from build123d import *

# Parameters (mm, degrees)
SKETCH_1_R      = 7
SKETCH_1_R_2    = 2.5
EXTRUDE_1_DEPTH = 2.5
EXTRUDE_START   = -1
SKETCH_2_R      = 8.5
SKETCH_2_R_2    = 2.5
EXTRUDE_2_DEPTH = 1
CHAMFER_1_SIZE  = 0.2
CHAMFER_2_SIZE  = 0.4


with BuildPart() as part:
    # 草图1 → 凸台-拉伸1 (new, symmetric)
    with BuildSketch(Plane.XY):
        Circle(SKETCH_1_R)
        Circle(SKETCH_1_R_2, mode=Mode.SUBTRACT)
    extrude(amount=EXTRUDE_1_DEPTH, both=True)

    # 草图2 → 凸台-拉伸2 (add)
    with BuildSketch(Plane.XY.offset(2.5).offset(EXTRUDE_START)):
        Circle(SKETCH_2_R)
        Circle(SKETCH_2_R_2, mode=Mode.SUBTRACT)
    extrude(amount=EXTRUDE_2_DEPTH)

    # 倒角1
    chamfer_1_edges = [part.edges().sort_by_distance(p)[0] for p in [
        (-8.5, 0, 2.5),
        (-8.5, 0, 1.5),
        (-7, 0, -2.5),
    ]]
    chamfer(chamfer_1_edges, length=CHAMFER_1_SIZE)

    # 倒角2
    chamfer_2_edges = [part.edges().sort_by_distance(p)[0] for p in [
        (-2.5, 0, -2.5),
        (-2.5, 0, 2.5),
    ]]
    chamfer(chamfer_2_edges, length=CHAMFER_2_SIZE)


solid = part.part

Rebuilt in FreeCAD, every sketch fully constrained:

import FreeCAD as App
import Part
import Sketcher
from FreeCAD import Vector
Q = App.Units.Quantity


def edges_at(feature, points):
    """Names of the edges that pass closest to the given points."""
    edges = feature.Shape.Edges
    near = lambda p: min(range(len(edges)), key=lambda i: edges[i].distToShape(Part.Vertex(*p))[0])
    return sorted({f"Edge{near(p) + 1}" for p in points})

doc = App.newDocument("Part")
body = doc.addObject("PartDesign::Body", "Body")

# Sketch on XY plane
sketch1 = body.newObject("Sketcher::SketchObject", "Sketch")
sketch1.AttachmentSupport = (doc.getObject("XY_Plane"), [""])
sketch1.MapMode = "FlatFace"
sketch1.addGeometry([
    Part.Circle(Vector(0, 0, 0), Vector(0, 0, 1), 7),
    Part.Circle(Vector(0, 0, 0), Vector(0, 0, 1), 2.5),
], False)
sketch1.addConstraint([
    Sketcher.Constraint("Coincident", 0, 3, -1, 1),
    Sketcher.Constraint("Coincident", 1, 3, -1, 1),
    Sketcher.Constraint("Diameter", 0, Q("14 mm")),
    Sketcher.Constraint("Diameter", 1, Q("5 mm")),
])
pad1 = body.newObject("PartDesign::Pad", "Pad")
pad1.Profile = sketch1
pad1.Length = 5
pad1.Midplane = True

# Sketch on XY plane
sketch2 = body.newObject("Sketcher::SketchObject", "Sketch001")
sketch2.AttachmentSupport = (doc.getObject("XY_Plane"), [""])
sketch2.MapMode = "FlatFace"
sketch2.AttachmentOffset = App.Placement(Vector(0, 0, 1.5), App.Rotation())
sketch2.addGeometry([
    Part.Circle(Vector(0, 0, 0), Vector(0, 0, 1), 8.5),
    Part.Circle(Vector(0, 0, 0), Vector(0, 0, 1), 2.5),
], False)
sketch2.addConstraint([
    Sketcher.Constraint("Coincident", 0, 3, -1, 1),
    Sketcher.Constraint("Coincident", 1, 3, -1, 1),
    Sketcher.Constraint("Diameter", 0, Q("17 mm")),
    Sketcher.Constraint("Diameter", 1, Q("5 mm")),
])
pad2 = body.newObject("PartDesign::Pad", "Pad001")
pad2.Profile = sketch2
pad2.Length = 1
doc.recompute()

chamfer = body.newObject("PartDesign::Chamfer", "Chamfer")
chamfer.Base = (pad2, edges_at(pad2, [(-8.5, 0, 2.5), (-8.5, 0, 1.5), (-7, 0, -2.5)]))
chamfer.Size = 0.2
doc.recompute()

chamfer2 = body.newObject("PartDesign::Chamfer", "Chamfer001")
chamfer2.Base = (chamfer, edges_at(chamfer, [(-2.5, 0, -2.5), (-2.5, 0, 2.5)]))
chamfer2.Size = 0.4

doc.recompute()
